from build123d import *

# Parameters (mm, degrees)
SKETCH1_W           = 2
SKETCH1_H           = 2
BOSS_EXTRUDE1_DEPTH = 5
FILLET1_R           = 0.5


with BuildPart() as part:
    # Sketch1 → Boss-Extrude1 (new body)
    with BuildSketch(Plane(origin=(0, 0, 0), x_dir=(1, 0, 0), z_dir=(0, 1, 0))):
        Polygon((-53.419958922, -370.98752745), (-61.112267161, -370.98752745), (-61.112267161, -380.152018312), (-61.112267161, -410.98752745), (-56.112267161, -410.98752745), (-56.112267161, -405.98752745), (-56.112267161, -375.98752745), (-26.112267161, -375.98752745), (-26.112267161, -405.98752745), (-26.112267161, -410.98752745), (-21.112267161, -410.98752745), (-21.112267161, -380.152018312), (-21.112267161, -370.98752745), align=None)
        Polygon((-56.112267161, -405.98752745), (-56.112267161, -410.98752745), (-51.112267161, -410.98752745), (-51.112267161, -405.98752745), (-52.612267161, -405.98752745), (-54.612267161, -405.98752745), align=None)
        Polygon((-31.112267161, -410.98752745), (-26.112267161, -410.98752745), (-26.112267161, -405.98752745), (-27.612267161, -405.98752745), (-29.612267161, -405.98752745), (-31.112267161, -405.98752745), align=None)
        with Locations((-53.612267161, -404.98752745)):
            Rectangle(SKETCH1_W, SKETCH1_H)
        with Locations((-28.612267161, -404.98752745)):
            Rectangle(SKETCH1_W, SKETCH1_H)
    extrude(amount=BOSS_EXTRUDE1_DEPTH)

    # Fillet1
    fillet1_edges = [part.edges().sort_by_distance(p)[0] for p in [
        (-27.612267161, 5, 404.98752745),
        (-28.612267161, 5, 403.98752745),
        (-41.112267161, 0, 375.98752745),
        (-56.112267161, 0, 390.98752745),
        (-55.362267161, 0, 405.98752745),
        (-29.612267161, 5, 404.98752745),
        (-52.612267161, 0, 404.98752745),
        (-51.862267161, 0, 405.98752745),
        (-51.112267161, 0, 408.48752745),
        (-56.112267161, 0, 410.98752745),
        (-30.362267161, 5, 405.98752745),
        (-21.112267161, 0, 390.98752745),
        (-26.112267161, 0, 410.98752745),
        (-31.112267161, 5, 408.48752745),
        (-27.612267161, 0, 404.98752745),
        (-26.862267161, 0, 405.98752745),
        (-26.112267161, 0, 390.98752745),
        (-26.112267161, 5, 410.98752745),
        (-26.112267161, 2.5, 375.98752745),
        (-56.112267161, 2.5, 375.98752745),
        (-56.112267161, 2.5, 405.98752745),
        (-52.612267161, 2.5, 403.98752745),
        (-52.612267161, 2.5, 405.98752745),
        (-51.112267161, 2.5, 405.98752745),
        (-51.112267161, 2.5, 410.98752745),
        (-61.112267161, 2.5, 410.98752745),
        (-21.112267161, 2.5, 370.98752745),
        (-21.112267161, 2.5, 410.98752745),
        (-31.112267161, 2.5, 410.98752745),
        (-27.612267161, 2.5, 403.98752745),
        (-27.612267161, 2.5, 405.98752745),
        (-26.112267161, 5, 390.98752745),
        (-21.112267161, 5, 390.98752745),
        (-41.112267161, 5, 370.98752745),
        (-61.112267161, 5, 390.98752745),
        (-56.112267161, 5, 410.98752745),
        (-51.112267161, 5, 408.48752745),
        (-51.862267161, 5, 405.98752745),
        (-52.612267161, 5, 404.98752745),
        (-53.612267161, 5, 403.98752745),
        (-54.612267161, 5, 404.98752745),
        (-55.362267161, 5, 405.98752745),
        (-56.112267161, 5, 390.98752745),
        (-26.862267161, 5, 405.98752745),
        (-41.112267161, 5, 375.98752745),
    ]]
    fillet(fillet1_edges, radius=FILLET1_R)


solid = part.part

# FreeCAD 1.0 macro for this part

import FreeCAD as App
import Part
import Sketcher
Q = App.Units.Quantity


def edges_at(feature, points):
    """Names of the edges that pass closest to the given points."""
    edges = feature.Shape.Edges
    near = lambda p: min(range(len(edges)), key=lambda i: edges[i].distToShape(Part.Vertex(*p))[0])
    return sorted({f"Edge{near(p) + 1}" for p in points})


def add_polygon(sketch, points):
    """Adds a closed chain of lines whose ends are joined by coincident constraints."""
    first, n = sketch.GeometryCount, len(points)
    for a, b in zip(points, points[1:] + points[:1]):
        sketch.addGeometry(Part.LineSegment(App.Vector(*a, 0), App.Vector(*b, 0)), False)
    for i in range(n):
        sketch.addConstraint(Sketcher.Constraint("Coincident", first + i, 2, first + (i + 1) % n, 1))

doc = App.newDocument("Part")
body = doc.addObject("PartDesign::Body", "Body")

sketch1 = body.newObject("Sketcher::SketchObject", "Sketch")
sketch1.AttachmentSupport = (doc.getObject("XZ_Plane"), [""])
sketch1.MapMode = "FlatFace"
add_polygon(sketch1, [(-61.1, 371), (-61.1, 411), (-51.1, 411), (-51.1, 406), (-52.6, 406), (-52.6, 404), (-54.6, 404), (-54.6, 406), (-56.1, 406), (-56.1, 376), (-26.1, 376), (-26.1, 406), (-27.6, 406), (-27.6, 404), (-29.6, 404), (-29.6, 406), (-31.1, 406), (-31.1, 411), (-21.1, 411), (-21.1, 371)])
sketch1.addConstraint([
    Sketcher.Constraint("Vertical", 0),
    Sketcher.Constraint("Horizontal", 1),
    Sketcher.Constraint("Vertical", 2),
    Sketcher.Constraint("Horizontal", 3),
    Sketcher.Constraint("Vertical", 4),
    Sketcher.Constraint("Horizontal", 5),
    Sketcher.Constraint("Vertical", 6),
    Sketcher.Constraint("Horizontal", 7),
    Sketcher.Constraint("Vertical", 8),
    Sketcher.Constraint("Horizontal", 9),
    Sketcher.Constraint("Vertical", 10),
    Sketcher.Constraint("Horizontal", 11),
    Sketcher.Constraint("Vertical", 12),
    Sketcher.Constraint("Horizontal", 13),
    Sketcher.Constraint("Vertical", 14),
    Sketcher.Constraint("Horizontal", 15),
    Sketcher.Constraint("Vertical", 16),
    Sketcher.Constraint("Horizontal", 17),
    Sketcher.Constraint("Vertical", 18),
    Sketcher.Constraint("Horizontal", 19),
    Sketcher.Constraint("Horizontal", 3, 2, 6, 2),
    Sketcher.Constraint("Horizontal", 7, 2, 10, 2),
    Sketcher.Constraint("Horizontal", 5, 2, 12, 2),
    Sketcher.Constraint("Horizontal", 11, 2, 14, 2),
    Sketcher.Constraint("Horizontal", 1, 2, 16, 2),
    Sketcher.Constraint("Equal", 3, 7),
    Sketcher.Constraint("Equal", 7, 11),
    Sketcher.Constraint("Equal", 5, 13),
    Sketcher.Constraint("Equal", 11, 15),
    Sketcher.Constraint("Equal", 1, 17),
    Sketcher.Constraint("Equal", 19, 0),
    Sketcher.Constraint("Equal", 13, 4),
    Sketcher.Constraint("Equal", 9, 8),
    Sketcher.Constraint("DistanceX", 1, 1, 1, 2, Q("10 mm")),
    Sketcher.Constraint("DistanceX", 5, 2, 5, 1, Q("2 mm")),
    Sketcher.Constraint("DistanceX", 9, 1, 9, 2, Q("30 mm")),
    Sketcher.Constraint("DistanceX", 19, 2, 19, 1, Q("40 mm")),
    Sketcher.Constraint("DistanceY", 2, 2, 2, 1, Q("5 mm")),
    Sketcher.Constraint("DistanceX", 0, 2, -1, 1, Q("61.112267 mm")),
    Sketcher.Constraint("DistanceY", -1, 1, 0, 2, Q("410.987527 mm")),
])
pad1 = body.newObject("PartDesign::Pad", "Pad")
pad1.Profile = sketch1
pad1.Length = 5
pad1.Reversed = True
doc.recompute()

fillet = body.newObject("PartDesign::Fillet", "Fillet")
fillet.Base = (pad1, edges_at(pad1, [
    (-27.612, 5, 404.988),
    (-28.612, 5, 403.988),
    (-41.112, 0, 375.988),
    (-56.112, 0, 390.988),
    (-55.362, 0, 405.988),
    (-29.612, 5, 404.988),
    (-52.612, 0, 404.988),
    (-51.862, 0, 405.988),
    (-51.112, 0, 408.488),
    (-56.112, 0, 410.988),
    (-30.362, 5, 405.988),
    (-21.112, 0, 390.988),
    (-26.112, 0, 410.988),
    (-31.112, 5, 408.488),
    (-27.612, 0, 404.988),
    (-26.862, 0, 405.988),
    (-26.112, 0, 390.988),
    (-26.112, 5, 410.988),
    (-26.112, 2.5, 375.988),
    (-56.112, 2.5, 375.988),
    (-56.112, 2.5, 405.988),
    (-52.612, 2.5, 403.988),
    (-52.612, 2.5, 405.988),
    (-51.112, 2.5, 405.988),
    (-51.112, 2.5, 410.988),
    (-61.112, 2.5, 410.988),
    (-21.112, 2.5, 370.988),
    (-21.112, 2.5, 410.988),
    (-31.112, 2.5, 410.988),
    (-27.612, 2.5, 403.988),
    (-27.612, 2.5, 405.988),
    (-26.112, 5, 390.988),
    (-21.112, 5, 390.988),
    (-41.112, 5, 370.988),
    (-61.112, 5, 390.988),
    (-56.112, 5, 410.988),
    (-51.112, 5, 408.488),
    (-51.862, 5, 405.988),
    (-52.612, 5, 404.988),
    (-53.612, 5, 403.988),
    (-54.612, 5, 404.988),
    (-55.362, 5, 405.988),
    (-56.112, 5, 390.988),
    (-26.862, 5, 405.988),
    (-41.112, 5, 375.988),
]))
fillet.Radius = 0.5

doc.recompute()
